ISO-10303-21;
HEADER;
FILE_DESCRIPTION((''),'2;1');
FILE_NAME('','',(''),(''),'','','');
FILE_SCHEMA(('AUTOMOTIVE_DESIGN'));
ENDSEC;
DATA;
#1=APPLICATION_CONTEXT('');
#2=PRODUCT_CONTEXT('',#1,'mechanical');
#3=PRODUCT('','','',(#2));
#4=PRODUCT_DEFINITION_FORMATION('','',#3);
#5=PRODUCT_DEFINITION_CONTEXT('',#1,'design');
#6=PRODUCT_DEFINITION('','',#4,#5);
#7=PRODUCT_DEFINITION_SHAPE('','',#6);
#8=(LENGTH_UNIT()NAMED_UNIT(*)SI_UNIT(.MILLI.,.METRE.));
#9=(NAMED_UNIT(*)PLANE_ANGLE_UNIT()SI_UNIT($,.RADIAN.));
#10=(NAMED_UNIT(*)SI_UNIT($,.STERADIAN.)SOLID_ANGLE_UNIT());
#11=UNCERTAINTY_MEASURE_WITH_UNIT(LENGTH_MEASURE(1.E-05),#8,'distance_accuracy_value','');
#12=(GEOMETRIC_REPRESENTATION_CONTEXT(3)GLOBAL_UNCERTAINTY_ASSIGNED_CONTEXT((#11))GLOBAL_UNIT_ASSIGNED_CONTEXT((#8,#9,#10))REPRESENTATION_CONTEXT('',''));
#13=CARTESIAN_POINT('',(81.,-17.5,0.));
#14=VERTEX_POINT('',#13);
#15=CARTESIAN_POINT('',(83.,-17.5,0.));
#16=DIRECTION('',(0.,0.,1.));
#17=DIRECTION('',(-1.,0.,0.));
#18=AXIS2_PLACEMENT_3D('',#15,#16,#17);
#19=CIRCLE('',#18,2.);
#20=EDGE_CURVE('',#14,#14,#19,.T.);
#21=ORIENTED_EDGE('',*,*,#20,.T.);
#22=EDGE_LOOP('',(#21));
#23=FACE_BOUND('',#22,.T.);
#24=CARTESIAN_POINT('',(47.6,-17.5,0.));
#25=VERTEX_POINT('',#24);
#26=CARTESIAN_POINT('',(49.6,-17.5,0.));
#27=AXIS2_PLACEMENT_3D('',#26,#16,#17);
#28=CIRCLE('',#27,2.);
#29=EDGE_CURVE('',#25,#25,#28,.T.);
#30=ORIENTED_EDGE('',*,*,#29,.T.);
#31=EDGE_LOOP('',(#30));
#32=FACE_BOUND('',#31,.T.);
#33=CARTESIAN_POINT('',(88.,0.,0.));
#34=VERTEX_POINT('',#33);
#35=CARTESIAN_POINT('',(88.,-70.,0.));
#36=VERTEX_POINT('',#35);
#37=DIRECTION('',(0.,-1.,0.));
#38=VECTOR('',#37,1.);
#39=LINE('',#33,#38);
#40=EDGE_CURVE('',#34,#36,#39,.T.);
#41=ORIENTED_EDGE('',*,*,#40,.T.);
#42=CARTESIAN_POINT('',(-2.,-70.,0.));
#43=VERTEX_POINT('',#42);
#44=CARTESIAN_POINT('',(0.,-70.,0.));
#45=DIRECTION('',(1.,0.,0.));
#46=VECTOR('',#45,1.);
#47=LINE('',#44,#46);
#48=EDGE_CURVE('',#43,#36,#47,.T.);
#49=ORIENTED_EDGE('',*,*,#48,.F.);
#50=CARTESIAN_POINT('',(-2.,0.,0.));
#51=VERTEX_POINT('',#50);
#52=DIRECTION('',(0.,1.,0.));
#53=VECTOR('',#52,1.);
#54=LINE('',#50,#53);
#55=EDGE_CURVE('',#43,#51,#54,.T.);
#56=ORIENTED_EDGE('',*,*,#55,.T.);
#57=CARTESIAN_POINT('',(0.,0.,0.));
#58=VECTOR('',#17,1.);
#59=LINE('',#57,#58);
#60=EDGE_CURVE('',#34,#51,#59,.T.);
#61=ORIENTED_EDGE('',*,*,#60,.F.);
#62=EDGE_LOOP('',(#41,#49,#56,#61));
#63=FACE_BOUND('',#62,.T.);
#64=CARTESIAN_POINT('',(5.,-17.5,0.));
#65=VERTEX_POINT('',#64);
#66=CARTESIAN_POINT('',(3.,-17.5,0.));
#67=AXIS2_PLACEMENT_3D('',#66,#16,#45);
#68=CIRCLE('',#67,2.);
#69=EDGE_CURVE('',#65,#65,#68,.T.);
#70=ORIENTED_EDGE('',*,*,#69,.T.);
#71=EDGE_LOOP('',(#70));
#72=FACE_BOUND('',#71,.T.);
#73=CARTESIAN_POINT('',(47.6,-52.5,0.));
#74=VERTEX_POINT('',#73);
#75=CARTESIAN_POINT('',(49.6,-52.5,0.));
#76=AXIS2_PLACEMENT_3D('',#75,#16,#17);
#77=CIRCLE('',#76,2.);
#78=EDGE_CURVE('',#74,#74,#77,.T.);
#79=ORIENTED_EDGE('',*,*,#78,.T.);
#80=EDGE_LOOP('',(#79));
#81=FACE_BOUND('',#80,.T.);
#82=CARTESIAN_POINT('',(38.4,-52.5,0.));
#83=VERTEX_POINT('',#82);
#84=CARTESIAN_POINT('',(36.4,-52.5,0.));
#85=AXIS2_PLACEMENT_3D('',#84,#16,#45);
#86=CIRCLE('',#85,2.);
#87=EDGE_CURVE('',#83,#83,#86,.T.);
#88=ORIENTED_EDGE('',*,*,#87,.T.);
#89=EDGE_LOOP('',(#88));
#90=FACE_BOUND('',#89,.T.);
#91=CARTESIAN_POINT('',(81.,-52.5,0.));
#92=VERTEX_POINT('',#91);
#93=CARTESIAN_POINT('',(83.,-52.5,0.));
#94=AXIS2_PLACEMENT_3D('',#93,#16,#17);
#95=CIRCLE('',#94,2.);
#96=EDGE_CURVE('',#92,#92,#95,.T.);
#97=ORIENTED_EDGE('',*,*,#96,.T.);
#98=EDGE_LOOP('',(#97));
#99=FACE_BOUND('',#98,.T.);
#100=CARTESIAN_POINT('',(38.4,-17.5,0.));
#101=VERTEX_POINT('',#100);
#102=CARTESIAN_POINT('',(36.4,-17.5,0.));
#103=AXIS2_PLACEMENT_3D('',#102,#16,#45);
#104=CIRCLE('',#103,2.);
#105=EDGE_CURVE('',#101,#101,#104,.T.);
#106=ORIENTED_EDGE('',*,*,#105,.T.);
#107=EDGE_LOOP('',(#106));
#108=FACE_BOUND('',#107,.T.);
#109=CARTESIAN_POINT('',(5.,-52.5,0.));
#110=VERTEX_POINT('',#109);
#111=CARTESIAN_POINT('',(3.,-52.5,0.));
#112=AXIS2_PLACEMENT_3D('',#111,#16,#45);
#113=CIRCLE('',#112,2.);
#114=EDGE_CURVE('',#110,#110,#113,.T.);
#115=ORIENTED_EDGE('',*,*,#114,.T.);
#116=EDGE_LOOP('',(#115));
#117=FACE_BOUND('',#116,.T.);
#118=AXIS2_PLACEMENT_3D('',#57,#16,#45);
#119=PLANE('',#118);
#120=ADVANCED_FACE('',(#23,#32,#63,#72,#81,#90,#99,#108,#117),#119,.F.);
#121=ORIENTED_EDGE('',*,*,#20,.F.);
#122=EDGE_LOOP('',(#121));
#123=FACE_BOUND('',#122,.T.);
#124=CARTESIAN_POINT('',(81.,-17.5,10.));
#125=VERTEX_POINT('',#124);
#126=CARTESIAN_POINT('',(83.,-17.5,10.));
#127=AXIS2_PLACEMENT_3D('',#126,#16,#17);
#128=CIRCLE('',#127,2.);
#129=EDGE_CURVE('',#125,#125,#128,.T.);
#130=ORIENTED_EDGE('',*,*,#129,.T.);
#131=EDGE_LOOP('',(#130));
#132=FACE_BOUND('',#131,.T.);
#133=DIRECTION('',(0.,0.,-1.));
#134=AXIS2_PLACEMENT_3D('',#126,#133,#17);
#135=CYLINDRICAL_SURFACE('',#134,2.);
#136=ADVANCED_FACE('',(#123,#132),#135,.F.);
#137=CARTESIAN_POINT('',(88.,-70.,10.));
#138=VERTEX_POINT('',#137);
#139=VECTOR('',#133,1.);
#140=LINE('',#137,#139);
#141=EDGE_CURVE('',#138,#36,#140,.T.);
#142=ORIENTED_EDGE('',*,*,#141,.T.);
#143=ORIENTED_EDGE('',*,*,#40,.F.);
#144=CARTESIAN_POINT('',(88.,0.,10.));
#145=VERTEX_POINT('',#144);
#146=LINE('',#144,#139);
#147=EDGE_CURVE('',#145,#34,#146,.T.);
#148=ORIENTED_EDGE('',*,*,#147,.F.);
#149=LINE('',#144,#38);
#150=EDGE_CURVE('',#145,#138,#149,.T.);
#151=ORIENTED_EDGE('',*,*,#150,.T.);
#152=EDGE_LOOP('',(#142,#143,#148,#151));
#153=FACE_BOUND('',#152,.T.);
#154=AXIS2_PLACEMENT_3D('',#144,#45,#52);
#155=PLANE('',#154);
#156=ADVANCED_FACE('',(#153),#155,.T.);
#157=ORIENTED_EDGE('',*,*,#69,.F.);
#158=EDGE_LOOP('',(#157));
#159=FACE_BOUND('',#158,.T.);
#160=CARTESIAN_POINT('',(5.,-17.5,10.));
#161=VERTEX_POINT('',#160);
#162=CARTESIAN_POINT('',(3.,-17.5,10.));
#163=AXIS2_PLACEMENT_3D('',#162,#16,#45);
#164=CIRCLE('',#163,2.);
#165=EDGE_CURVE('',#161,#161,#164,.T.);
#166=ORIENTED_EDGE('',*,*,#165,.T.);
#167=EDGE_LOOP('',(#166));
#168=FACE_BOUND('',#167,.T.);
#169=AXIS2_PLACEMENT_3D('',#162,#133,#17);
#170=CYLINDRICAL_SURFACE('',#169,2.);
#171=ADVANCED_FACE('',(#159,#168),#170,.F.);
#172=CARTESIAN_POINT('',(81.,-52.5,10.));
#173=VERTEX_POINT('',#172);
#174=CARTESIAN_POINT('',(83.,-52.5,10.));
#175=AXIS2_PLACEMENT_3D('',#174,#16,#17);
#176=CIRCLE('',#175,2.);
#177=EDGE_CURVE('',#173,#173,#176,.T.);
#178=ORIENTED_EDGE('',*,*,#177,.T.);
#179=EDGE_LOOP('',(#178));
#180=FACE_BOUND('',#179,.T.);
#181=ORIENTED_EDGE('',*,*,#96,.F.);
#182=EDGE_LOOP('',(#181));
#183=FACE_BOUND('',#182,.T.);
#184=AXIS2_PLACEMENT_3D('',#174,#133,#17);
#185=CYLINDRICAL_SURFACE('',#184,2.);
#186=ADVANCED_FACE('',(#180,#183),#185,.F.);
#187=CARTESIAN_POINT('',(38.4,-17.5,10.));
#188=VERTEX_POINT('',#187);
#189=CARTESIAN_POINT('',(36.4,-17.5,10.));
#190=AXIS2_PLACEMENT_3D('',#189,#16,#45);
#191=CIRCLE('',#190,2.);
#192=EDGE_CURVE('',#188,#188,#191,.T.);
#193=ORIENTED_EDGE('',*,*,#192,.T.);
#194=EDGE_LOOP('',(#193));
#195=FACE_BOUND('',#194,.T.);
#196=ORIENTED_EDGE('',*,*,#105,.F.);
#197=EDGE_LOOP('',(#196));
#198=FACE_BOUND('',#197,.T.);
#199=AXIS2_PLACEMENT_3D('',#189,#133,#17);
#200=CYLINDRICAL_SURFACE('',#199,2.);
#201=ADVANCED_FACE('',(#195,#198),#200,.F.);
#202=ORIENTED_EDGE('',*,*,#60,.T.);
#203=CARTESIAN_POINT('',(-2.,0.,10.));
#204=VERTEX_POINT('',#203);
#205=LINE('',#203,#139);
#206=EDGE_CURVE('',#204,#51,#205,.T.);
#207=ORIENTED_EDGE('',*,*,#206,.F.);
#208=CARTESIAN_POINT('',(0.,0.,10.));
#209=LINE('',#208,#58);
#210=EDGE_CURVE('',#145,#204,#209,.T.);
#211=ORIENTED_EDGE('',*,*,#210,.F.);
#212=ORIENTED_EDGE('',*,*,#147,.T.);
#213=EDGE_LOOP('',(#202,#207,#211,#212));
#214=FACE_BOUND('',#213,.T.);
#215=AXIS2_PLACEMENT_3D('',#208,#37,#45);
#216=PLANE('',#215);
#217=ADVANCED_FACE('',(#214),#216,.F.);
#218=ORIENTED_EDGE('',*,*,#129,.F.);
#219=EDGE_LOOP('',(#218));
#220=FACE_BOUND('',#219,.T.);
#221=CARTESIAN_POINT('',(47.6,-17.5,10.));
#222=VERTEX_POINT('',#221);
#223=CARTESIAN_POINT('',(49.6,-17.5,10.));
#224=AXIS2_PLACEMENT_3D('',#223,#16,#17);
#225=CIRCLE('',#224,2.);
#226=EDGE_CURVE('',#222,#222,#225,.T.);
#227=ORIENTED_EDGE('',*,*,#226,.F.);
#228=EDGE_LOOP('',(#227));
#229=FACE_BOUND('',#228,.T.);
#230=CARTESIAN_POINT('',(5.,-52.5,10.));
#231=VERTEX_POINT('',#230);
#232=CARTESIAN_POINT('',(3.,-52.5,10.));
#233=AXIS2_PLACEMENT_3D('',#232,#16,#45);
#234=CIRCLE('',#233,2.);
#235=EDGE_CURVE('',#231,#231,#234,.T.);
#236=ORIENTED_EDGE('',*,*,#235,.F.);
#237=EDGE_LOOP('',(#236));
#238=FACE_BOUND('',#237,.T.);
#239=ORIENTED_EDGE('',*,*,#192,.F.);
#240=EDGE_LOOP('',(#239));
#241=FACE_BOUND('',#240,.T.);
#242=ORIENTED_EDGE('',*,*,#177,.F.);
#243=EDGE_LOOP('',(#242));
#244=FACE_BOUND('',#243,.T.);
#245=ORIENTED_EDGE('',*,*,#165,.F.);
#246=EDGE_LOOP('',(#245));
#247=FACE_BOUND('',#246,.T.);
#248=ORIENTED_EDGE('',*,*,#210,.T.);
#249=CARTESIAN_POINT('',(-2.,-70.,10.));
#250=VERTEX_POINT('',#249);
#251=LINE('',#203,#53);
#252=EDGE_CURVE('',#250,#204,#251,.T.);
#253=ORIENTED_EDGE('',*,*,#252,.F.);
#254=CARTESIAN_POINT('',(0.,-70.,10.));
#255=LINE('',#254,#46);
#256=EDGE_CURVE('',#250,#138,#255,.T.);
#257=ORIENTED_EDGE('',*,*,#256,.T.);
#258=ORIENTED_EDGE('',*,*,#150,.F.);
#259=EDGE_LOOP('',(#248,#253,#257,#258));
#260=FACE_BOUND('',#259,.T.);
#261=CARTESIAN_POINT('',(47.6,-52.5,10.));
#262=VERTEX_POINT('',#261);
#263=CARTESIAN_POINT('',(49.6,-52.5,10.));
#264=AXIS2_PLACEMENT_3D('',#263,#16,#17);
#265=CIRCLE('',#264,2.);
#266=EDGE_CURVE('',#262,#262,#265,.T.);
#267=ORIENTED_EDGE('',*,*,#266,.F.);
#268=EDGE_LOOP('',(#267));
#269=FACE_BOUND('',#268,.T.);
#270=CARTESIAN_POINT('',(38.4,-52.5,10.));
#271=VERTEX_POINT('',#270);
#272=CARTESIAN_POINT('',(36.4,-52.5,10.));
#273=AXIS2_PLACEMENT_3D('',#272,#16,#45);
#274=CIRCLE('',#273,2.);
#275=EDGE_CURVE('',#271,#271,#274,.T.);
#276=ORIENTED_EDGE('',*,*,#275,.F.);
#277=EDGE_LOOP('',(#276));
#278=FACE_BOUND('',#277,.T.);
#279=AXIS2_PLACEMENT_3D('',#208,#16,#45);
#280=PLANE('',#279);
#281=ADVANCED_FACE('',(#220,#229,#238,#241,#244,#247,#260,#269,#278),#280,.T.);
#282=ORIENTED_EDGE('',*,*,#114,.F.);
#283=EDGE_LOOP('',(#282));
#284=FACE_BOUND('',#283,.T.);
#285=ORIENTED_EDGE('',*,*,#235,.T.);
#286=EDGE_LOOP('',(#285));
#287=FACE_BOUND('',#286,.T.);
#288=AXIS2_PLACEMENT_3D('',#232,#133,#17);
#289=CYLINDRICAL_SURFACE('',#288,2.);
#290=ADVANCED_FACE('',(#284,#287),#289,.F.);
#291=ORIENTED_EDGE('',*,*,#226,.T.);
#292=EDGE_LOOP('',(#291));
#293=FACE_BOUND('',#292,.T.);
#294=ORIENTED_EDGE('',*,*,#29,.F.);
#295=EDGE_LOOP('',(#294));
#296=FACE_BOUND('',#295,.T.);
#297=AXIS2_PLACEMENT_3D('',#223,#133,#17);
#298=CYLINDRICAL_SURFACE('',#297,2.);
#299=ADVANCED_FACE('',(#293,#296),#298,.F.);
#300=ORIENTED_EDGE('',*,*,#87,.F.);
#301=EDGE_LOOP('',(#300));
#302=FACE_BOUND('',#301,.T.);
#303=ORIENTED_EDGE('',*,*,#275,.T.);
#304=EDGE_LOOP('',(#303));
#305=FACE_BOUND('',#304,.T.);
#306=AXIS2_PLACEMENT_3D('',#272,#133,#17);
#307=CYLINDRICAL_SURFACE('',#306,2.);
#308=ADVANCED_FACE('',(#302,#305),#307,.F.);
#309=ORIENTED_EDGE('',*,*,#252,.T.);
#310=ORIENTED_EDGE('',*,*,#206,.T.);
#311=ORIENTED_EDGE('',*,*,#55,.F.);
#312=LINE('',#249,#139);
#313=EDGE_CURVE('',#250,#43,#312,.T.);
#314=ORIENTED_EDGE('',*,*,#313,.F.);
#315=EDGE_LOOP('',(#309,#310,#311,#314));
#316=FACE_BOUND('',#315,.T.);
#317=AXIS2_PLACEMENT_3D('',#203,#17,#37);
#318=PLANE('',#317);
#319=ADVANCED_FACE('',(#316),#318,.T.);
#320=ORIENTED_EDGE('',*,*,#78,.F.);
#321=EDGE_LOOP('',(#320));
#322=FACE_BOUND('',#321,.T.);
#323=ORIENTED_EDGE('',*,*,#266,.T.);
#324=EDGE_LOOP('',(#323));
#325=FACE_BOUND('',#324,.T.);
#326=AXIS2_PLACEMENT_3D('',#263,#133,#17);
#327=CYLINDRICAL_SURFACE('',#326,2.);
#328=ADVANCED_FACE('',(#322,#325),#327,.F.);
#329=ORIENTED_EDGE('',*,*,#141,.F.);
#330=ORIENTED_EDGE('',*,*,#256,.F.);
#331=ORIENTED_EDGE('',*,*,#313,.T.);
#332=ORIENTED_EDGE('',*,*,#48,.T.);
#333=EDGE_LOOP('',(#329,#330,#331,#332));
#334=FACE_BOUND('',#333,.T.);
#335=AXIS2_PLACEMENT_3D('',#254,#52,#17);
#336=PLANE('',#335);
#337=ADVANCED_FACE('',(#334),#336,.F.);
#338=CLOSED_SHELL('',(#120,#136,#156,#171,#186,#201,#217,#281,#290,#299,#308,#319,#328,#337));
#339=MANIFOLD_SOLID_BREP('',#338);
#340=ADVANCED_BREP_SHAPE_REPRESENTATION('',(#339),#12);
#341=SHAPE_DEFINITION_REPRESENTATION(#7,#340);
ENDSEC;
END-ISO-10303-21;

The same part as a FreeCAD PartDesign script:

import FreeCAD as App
import Part
import Sketcher
Q = App.Units.Quantity

doc = App.newDocument("Part")
body = doc.addObject("PartDesign::Body", "Body")

# Sketch on XY plane
sketch1 = body.newObject("Sketcher::SketchObject", "Sketch")
sketch1.AttachmentSupport = (doc.getObject("XY_Plane"), [""])
sketch1.MapMode = "FlatFace"
sketch1.addGeometry([
    Part.LineSegment(App.Vector(0, 0, 0), App.Vector(0, -70, 0)),  # 0
    Part.LineSegment(App.Vector(0, -70, 0), App.Vector(86, -70, 0)),  # 1
    Part.LineSegment(App.Vector(86, -70, 0), App.Vector(86, 0, 0)),  # 2
    Part.LineSegment(App.Vector(86, 0, 0), App.Vector(0, 0, 0)),  # 3
    Part.Circle(App.Vector(3, -52.5, 0), App.Vector(0, 0, 1), 2),  # 4
    Part.Circle(App.Vector(36.4, -52.5, 0), App.Vector(0, 0, 1), 2),  # 5
    Part.Circle(App.Vector(49.6, -52.5, 0), App.Vector(0, 0, 1), 2),  # 6
    Part.Circle(App.Vector(83, -52.5, 0), App.Vector(0, 0, 1), 2),  # 7
    Part.Circle(App.Vector(3, -17.5, 0), App.Vector(0, 0, 1), 2),  # 8
    Part.Circle(App.Vector(36.4, -17.5, 0), App.Vector(0, 0, 1), 2),  # 9
    Part.Circle(App.Vector(49.6, -17.5, 0), App.Vector(0, 0, 1), 2),  # 10
    Part.Circle(App.Vector(83, -17.5, 0), App.Vector(0, 0, 1), 2),  # 11
], False)
sketch1.addConstraint([
    Sketcher.Constraint("Coincident", 0, 2, 1, 1),
    Sketcher.Constraint("Coincident", 1, 2, 2, 1),
    Sketcher.Constraint("Coincident", 2, 2, 3, 1),
    Sketcher.Constraint("Coincident", 3, 2, 0, 1),
    Sketcher.Constraint("Vertical", 0),
    Sketcher.Constraint("Horizontal", 1),
    Sketcher.Constraint("Vertical", 2),
    Sketcher.Constraint("Horizontal", 3),
    Sketcher.Constraint("Coincident", 3, 2, -1, 1),
    Sketcher.Constraint("Equal", 4, 5),
    Sketcher.Constraint("Equal", 5, 6),
    Sketcher.Constraint("Equal", 6, 7),
    Sketcher.Constraint("Equal", 7, 8),
    Sketcher.Constraint("Equal", 8, 9),
    Sketcher.Constraint("Equal", 9, 10),
    Sketcher.Constraint("Equal", 10, 11),
    Sketcher.Constraint("Horizontal", 4, 3, 5, 3),
    Sketcher.Constraint("Horizontal", 5, 3, 6, 3),
    Sketcher.Constraint("Horizontal", 6, 3, 7, 3),
    Sketcher.Constraint("Horizontal", 8, 3, 9, 3),
    Sketcher.Constraint("Horizontal", 9, 3, 10, 3),
    Sketcher.Constraint("Horizontal", 10, 3, 11, 3),
    Sketcher.Constraint("Vertical", 4, 3, 8, 3),
    Sketcher.Constraint("Vertical", 5, 3, 9, 3),
    Sketcher.Constraint("Vertical", 6, 3, 10, 3),
    Sketcher.Constraint("Vertical", 7, 3, 11, 3),
    Sketcher.Constraint("Diameter", 4, Q("4 mm")),
    Sketcher.Constraint("DistanceX", 1, 1, 1, 2, Q("86 mm")),
    Sketcher.Constraint("DistanceY", 0, 2, 0, 1, Q("70 mm")),
    Sketcher.Constraint("DistanceX", -1, 1, 4, 3, Q("3 mm")),
    Sketcher.Constraint("DistanceX", -1, 1, 7, 3, Q("83 mm")),
    Sketcher.Constraint("DistanceY", 4, 3, 8, 3, Q("35 mm")),
    Sketcher.Constraint("DistanceY", 4, 3, -1, 1, Q("52.5 mm")),
    Sketcher.Constraint("DistanceX", -1, 1, 5, 3, Q("36.4 mm")),
    Sketcher.Constraint("DistanceX", -1, 1, 6, 3, Q("49.6 mm")),
])
pad1 = body.newObject("PartDesign::Pad", "Pad")
pad1.Profile = sketch1
pad1.Length = 10

# Sketch on XY plane
sketch2 = body.newObject("Sketcher::SketchObject", "Sketch001")
sketch2.AttachmentSupport = (doc.getObject("XY_Plane"), [""])
sketch2.MapMode = "FlatFace"
sketch2.addGeometry([
    Part.LineSegment(App.Vector(0, 0, 0), App.Vector(0, -70, 0)),  # 0
    Part.LineSegment(App.Vector(0, -70, 0), App.Vector(-2, -70, 0)),  # 1
    Part.LineSegment(App.Vector(-2, -70, 0), App.Vector(-2, 0, 0)),  # 2
    Part.LineSegment(App.Vector(-2, 0, 0), App.Vector(0, 0, 0)),  # 3
    Part.LineSegment(App.Vector(88, 0, 0), App.Vector(88, -70, 0)),  # 4
    Part.LineSegment(App.Vector(88, -70, 0), App.Vector(86, -70, 0)),  # 5
    Part.LineSegment(App.Vector(86, -70, 0), App.Vector(86, 0, 0)),  # 6
    Part.LineSegment(App.Vector(86, 0, 0), App.Vector(88, 0, 0)),  # 7
], False)
sketch2.addConstraint([
    Sketcher.Constraint("Coincident", 0, 2, 1, 1),
    Sketcher.Constraint("Coincident", 1, 2, 2, 1),
    Sketcher.Constraint("Coincident", 2, 2, 3, 1),
    Sketcher.Constraint("Coincident", 3, 2, 0, 1),
    Sketcher.Constraint("Coincident", 4, 2, 5, 1),
    Sketcher.Constraint("Coincident", 5, 2, 6, 1),
    Sketcher.Constraint("Coincident", 6, 2, 7, 1),
    Sketcher.Constraint("Coincident", 7, 2, 4, 1),
    Sketcher.Constraint("Vertical", 0),
    Sketcher.Constraint("Horizontal", 1),
    Sketcher.Constraint("Vertical", 2),
    Sketcher.Constraint("Horizontal", 3),
    Sketcher.Constraint("Vertical", 4),
    Sketcher.Constraint("Horizontal", 5),
    Sketcher.Constraint("Vertical", 6),
    Sketcher.Constraint("Horizontal", 7),
    Sketcher.Constraint("Coincident", 3, 2, -1, 1),
    Sketcher.Constraint("PointOnObject", 6, 2, -1),
    Sketcher.Constraint("Horizontal", 1, 2, 4, 2),
    Sketcher.Constraint("Equal", 3, 5),
    Sketcher.Constraint("DistanceX", 1, 2, 1, 1, Q("2 mm")),
    Sketcher.Constraint("DistanceY", 0, 2, 0, 1, Q("70 mm")),
    Sketcher.Constraint("DistanceX", -1, 1, 4, 2, Q("88 mm")),
])
pad2 = body.newObject("PartDesign::Pad", "Pad001")
pad2.Profile = sketch2
pad2.Length = 10

doc.recompute()
